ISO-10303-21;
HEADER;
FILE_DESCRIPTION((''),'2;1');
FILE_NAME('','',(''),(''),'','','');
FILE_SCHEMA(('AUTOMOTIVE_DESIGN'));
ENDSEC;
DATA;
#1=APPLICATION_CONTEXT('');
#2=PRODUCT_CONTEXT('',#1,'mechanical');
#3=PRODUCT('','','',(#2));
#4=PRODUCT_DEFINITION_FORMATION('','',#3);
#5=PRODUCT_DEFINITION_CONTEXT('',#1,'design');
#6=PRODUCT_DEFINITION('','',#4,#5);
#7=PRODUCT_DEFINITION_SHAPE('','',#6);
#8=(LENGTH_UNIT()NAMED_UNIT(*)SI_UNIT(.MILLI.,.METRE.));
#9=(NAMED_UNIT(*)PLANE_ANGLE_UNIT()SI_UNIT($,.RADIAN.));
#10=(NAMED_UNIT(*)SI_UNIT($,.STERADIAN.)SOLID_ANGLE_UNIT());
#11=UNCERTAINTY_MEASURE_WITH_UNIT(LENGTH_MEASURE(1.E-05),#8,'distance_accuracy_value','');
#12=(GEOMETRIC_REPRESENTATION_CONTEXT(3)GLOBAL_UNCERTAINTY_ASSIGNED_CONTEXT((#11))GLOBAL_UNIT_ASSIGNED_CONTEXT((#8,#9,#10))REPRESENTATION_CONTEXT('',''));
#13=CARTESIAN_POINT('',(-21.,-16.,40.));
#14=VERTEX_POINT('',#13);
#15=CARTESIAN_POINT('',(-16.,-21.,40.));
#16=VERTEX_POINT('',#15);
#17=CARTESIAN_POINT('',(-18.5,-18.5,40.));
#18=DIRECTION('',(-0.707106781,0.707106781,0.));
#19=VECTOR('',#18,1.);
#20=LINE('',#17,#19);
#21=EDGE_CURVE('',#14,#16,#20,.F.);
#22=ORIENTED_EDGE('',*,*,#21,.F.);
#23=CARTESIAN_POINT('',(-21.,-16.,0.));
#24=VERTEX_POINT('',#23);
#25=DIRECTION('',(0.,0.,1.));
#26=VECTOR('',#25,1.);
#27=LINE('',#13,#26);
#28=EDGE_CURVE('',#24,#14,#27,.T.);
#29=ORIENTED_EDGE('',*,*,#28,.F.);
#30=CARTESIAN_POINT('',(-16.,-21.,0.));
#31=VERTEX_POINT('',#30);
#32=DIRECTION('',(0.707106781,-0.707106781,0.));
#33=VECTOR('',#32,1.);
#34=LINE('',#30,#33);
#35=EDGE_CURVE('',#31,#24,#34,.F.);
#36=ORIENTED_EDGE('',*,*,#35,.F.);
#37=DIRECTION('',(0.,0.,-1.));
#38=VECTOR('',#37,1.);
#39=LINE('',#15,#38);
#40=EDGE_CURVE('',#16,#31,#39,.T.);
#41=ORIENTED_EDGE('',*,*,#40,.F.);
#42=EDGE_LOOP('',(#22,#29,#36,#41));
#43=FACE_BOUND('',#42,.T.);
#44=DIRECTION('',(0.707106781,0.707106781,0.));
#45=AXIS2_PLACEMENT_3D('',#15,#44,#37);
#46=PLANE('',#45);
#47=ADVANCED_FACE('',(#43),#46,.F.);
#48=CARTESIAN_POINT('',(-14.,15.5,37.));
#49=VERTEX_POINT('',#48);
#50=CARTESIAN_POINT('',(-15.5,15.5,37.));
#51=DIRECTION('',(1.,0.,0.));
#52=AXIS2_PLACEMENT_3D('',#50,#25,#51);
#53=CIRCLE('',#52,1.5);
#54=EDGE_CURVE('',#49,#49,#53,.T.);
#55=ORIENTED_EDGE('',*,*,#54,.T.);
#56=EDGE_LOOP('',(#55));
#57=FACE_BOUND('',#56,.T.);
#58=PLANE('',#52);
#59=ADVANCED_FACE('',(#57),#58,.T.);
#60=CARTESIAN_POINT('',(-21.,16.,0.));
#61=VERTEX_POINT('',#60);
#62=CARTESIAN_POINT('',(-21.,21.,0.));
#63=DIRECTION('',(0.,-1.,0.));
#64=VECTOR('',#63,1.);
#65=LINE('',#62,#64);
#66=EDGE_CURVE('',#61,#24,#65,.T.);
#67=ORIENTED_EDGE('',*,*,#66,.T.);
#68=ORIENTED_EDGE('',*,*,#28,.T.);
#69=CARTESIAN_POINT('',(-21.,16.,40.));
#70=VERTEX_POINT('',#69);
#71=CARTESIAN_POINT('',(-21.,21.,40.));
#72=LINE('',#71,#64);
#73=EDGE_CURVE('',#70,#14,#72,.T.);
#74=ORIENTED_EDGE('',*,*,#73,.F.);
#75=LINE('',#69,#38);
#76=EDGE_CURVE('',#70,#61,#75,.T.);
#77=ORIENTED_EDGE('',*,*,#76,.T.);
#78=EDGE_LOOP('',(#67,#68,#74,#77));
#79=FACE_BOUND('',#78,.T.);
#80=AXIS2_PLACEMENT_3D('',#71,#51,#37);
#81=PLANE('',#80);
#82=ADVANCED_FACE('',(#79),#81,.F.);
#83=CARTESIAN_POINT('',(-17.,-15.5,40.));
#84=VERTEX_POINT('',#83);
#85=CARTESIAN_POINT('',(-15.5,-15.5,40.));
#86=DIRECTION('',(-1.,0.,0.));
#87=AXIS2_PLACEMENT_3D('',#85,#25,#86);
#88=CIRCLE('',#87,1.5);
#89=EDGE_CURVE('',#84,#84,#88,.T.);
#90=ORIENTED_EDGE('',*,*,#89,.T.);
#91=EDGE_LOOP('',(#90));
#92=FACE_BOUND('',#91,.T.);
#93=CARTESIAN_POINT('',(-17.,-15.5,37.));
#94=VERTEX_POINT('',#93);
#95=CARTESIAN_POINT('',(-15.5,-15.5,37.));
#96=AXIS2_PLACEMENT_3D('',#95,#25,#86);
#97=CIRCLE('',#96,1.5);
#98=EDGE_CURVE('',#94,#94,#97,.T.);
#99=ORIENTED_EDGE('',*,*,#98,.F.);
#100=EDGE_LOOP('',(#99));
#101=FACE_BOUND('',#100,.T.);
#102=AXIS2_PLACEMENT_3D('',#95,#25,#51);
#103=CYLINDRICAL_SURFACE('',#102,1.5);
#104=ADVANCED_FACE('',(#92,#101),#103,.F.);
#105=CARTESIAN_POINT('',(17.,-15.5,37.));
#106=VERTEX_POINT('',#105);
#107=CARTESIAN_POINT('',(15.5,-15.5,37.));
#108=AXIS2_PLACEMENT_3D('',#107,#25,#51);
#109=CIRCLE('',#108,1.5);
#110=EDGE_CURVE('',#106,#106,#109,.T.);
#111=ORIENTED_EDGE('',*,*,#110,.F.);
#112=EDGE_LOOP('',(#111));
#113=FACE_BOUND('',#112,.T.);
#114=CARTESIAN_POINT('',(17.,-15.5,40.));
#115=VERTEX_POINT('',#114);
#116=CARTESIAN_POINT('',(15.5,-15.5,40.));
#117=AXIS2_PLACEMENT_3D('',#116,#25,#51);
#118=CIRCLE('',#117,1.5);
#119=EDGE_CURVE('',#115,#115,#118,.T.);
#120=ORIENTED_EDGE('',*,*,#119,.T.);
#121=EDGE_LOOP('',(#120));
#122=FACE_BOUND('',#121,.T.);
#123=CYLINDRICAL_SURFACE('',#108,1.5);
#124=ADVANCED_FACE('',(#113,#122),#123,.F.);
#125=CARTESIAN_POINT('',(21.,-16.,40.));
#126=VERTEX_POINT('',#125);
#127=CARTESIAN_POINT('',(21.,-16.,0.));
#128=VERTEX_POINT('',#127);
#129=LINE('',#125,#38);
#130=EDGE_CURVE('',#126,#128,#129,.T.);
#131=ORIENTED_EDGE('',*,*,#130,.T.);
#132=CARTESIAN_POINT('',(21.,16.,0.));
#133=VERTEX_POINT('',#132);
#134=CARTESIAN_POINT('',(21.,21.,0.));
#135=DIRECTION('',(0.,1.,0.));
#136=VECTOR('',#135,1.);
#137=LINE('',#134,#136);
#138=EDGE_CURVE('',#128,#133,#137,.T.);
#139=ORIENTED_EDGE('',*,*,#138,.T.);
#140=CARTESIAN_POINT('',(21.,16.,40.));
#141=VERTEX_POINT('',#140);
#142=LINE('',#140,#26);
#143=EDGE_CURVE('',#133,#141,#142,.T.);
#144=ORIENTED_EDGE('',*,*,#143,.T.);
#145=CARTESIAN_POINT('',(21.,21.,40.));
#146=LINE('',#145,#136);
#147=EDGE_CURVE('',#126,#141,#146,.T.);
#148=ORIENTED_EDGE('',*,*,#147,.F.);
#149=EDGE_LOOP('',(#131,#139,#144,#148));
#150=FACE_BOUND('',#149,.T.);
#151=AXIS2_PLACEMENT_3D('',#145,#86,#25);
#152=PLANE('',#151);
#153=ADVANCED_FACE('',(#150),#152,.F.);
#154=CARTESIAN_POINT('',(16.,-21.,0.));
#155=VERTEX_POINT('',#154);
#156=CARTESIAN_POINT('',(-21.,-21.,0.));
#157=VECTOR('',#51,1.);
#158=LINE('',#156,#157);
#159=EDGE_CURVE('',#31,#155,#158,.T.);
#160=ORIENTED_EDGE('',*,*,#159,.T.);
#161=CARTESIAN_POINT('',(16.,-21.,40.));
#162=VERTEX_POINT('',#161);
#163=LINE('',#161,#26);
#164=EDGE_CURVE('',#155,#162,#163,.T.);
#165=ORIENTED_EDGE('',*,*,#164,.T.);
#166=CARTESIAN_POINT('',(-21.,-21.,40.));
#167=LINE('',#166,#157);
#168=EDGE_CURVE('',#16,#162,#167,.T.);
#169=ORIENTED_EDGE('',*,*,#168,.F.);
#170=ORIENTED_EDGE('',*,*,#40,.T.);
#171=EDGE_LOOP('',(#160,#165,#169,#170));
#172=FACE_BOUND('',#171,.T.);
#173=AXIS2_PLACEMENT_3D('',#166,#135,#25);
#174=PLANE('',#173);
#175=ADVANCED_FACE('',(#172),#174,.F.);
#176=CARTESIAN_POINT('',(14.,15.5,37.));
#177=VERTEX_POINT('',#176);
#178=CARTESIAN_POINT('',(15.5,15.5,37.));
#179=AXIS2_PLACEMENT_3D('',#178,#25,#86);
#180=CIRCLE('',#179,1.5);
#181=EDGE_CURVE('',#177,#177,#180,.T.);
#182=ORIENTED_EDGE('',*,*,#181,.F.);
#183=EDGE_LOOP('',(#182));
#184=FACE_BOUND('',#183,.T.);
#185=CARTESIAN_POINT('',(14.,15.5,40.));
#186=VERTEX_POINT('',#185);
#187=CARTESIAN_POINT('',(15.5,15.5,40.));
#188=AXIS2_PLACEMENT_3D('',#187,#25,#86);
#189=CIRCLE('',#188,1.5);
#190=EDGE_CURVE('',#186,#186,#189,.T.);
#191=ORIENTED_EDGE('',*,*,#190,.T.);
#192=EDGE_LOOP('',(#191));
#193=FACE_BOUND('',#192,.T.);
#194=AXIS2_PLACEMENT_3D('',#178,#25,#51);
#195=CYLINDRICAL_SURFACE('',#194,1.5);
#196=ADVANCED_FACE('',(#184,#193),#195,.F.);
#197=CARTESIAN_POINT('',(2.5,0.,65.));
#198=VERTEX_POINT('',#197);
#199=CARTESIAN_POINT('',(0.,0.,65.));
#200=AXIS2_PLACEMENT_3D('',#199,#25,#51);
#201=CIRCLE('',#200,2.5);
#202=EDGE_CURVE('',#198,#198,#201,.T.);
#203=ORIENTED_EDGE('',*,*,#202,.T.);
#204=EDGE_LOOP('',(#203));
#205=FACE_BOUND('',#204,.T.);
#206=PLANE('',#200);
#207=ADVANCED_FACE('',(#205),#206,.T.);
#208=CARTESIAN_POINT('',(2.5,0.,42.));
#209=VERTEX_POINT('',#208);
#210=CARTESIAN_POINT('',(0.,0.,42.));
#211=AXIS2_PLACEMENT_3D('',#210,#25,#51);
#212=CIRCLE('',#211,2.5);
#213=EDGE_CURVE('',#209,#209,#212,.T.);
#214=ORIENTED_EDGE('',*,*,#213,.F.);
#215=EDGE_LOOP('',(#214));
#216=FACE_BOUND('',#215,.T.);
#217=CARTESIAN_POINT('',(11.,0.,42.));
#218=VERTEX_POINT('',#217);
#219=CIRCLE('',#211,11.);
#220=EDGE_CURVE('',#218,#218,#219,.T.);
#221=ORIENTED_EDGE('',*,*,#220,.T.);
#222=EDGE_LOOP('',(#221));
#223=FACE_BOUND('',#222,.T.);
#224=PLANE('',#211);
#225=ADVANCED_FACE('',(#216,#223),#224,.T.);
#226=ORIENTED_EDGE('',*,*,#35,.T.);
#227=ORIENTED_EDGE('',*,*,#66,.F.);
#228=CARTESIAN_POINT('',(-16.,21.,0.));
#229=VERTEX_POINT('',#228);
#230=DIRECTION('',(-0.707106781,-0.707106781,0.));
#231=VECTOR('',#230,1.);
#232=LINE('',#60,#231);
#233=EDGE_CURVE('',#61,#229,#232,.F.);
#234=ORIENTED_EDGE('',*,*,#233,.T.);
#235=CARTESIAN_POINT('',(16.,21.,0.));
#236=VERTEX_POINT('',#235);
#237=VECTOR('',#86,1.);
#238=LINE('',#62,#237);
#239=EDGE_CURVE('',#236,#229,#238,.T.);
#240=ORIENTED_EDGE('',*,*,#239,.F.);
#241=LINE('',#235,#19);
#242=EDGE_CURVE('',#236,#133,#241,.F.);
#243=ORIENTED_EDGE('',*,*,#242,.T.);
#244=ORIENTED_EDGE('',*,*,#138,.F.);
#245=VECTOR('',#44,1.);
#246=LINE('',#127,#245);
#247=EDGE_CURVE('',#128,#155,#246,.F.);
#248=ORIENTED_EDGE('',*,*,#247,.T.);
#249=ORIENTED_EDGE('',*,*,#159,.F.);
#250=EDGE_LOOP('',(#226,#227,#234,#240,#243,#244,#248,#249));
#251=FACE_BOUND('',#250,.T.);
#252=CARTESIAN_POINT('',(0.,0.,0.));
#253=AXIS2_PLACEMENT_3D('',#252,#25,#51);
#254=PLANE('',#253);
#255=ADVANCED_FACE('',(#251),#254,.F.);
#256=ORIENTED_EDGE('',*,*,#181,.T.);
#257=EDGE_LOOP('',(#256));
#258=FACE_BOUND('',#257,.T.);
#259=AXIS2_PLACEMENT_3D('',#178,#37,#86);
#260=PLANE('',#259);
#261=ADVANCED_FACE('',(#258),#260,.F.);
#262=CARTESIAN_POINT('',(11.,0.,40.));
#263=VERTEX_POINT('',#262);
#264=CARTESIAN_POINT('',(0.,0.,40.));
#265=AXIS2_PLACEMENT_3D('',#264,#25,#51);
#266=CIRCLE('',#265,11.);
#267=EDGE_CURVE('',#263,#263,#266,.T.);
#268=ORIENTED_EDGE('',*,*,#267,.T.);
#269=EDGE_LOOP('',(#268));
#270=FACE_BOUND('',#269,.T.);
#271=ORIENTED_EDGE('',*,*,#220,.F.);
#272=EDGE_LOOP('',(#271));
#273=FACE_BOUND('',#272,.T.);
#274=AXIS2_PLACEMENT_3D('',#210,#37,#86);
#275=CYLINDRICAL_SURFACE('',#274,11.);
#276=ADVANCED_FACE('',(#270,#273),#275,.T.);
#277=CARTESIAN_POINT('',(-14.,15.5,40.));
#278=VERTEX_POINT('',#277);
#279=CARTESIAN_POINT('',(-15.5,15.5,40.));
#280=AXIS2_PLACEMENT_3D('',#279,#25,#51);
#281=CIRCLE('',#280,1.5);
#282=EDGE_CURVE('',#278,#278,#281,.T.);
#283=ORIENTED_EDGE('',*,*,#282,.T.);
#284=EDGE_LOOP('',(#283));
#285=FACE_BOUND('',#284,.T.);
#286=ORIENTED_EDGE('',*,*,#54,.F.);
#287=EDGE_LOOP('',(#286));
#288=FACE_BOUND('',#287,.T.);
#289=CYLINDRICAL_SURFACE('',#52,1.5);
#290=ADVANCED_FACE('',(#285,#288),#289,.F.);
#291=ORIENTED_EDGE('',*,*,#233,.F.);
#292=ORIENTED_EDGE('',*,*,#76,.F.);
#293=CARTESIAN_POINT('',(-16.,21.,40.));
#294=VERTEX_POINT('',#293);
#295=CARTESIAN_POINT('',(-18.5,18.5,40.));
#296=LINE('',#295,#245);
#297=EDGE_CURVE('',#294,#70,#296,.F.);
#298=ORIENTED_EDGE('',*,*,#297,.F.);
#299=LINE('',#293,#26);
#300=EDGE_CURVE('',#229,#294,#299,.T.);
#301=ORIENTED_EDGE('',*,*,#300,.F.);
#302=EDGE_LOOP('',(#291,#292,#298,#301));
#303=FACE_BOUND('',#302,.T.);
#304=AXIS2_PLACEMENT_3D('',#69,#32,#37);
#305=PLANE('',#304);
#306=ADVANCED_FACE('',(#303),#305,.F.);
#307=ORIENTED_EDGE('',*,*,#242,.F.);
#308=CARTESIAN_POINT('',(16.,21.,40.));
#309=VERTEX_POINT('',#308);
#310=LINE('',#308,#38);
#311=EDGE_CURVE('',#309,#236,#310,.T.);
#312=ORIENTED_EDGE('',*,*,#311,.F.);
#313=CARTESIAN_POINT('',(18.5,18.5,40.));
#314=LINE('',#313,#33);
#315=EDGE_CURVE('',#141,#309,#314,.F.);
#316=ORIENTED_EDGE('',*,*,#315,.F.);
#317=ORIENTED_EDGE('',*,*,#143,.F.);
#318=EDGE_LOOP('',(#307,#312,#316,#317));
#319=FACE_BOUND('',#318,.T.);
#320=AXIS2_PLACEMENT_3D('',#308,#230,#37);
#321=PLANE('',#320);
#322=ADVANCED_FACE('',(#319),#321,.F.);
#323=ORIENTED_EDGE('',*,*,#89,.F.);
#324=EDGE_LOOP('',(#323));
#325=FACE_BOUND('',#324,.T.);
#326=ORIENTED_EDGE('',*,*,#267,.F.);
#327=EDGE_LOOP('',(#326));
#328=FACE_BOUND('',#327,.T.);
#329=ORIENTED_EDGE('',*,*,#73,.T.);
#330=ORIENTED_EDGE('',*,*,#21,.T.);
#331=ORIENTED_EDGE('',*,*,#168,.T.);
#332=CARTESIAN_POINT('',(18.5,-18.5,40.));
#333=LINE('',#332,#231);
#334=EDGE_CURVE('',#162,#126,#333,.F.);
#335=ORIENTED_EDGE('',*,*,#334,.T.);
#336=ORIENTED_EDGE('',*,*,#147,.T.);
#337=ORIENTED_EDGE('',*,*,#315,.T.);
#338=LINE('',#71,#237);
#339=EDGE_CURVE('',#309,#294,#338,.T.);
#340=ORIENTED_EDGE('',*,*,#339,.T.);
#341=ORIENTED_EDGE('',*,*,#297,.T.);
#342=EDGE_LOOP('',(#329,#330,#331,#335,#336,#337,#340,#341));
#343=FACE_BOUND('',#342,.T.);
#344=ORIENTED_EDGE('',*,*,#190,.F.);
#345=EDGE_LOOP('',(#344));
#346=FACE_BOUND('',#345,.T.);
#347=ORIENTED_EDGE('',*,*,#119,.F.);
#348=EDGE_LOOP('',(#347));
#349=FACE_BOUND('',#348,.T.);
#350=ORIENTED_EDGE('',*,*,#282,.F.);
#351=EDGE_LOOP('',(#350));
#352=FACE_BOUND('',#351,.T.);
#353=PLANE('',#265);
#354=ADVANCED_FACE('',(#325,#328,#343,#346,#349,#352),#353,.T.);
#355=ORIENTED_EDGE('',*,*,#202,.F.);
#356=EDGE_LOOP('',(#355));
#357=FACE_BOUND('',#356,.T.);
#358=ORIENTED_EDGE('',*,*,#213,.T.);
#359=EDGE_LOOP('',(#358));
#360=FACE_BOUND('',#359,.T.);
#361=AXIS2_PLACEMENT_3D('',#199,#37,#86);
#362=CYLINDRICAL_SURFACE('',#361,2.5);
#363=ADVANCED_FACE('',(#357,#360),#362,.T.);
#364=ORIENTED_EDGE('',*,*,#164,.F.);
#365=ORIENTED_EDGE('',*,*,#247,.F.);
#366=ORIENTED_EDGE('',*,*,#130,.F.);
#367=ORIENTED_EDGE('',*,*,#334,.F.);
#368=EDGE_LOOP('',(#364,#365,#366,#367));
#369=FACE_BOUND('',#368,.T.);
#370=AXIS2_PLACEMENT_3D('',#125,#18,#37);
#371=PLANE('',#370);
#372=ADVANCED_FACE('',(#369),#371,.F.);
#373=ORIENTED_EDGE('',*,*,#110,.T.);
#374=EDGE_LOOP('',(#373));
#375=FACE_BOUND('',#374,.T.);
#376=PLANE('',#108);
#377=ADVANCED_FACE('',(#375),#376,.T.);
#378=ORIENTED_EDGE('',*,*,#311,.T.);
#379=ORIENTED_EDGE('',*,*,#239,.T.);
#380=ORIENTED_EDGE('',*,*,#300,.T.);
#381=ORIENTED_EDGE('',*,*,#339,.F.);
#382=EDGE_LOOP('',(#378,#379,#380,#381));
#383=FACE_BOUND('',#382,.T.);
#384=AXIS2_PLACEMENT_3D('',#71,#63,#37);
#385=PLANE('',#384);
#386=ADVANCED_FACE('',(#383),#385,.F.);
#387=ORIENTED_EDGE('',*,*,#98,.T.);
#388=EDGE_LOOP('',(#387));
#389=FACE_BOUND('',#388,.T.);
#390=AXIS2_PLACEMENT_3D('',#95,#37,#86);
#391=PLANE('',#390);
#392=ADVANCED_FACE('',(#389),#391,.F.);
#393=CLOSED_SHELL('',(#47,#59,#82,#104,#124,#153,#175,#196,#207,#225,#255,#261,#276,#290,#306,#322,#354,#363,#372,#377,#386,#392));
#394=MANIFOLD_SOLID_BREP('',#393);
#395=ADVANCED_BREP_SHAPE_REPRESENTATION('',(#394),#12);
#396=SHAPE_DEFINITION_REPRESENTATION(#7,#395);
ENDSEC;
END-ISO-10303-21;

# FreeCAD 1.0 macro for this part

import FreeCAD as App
import Part
import Sketcher
from FreeCAD import Vector


def edges_at(feature, points):
    """Names of the edges that pass closest to the given points."""
    edges = feature.Shape.Edges
    near = lambda p: min(range(len(edges)), key=lambda i: edges[i].distToShape(Part.Vertex(*p))[0])
    return sorted({f"Edge{near(p) + 1}" for p in points})


def add_polygon(sketch, points):
    """Adds a closed chain of lines whose ends are joined by coincident constraints."""
    first, n = sketch.GeometryCount, len(points)
    for a, b in zip(points, points[1:] + points[:1]):
        sketch.addGeometry(Part.LineSegment(App.Vector(*a, 0), App.Vector(*b, 0)), False)
    for i in range(n):
        sketch.addConstraint(Sketcher.Constraint("Coincident", first + i, 2, first + (i + 1) % n, 1))

doc = App.newDocument("Part")
body = doc.addObject("PartDesign::Body", "Body")

# Sketch on XY plane
sketch1 = body.newObject("Sketcher::SketchObject", "Sketch")
sketch1.AttachmentSupport = (doc.getObject("XY_Plane"), [""])
sketch1.MapMode = "FlatFace"
add_polygon(sketch1, [(-21, 21), (-21, -21), (21, -21), (21, 21)])  # lines 0-3
sketch1.addConstraint(Sketcher.Constraint("Vertical", 0))
sketch1.addConstraint(Sketcher.Constraint("Horizontal", 1))
sketch1.addConstraint(Sketcher.Constraint("Vertical", 2))
sketch1.addConstraint(Sketcher.Constraint("Horizontal", 3))
sketch1.addConstraint(Sketcher.Constraint("Symmetric", 0, 2, 2, 2, -1, 1))
sketch1.addConstraint(Sketcher.Constraint("Equal", 3, 0))
sketch1.addConstraint(Sketcher.Constraint("DistanceX", 1, 1, 1, 2, 42.0))
pad1 = body.newObject("PartDesign::Pad", "Pad")
pad1.Profile = sketch1
pad1.Length = 40
doc.recompute()

chamfer = body.newObject("PartDesign::Chamfer", "Chamfer")
chamfer.Base = (pad1, edges_at(pad1, [
    (-21, 21, 20),
    (21, 21, 20),
    (21, -21, 20),
    (-21, -21, 20),
]))
chamfer.Size = 5

# Sketch on XY plane
sketch2 = body.newObject("Sketcher::SketchObject", "Sketch001")
sketch2.AttachmentSupport = (doc.getObject("XY_Plane"), [""])
sketch2.MapMode = "FlatFace"
sketch2.AttachmentOffset = App.Placement(Vector(0, 0, 40), App.Rotation())
sketch2.addGeometry(Part.Circle(Vector(0, 0, 0), Vector(0, 0, 1), 11), False)
sketch2.addConstraint(Sketcher.Constraint("Coincident", 0, 3, -1, 1))
sketch2.addConstraint(Sketcher.Constraint("Diameter", 0, 22.0))
pad2 = body.newObject("PartDesign::Pad", "Pad001")
pad2.Profile = sketch2
pad2.Length = 2

# Sketch on XY plane
sketch3 = body.newObject("Sketcher::SketchObject", "Sketch002")
sketch3.AttachmentSupport = (doc.getObject("XY_Plane"), [""])
sketch3.MapMode = "FlatFace"
sketch3.AttachmentOffset = App.Placement(Vector(0, 0, 42), App.Rotation())
sketch3.addGeometry(Part.Circle(Vector(0, 0, 0), Vector(0, 0, 1), 2.5), False)
sketch3.addConstraint(Sketcher.Constraint("Coincident", 0, 3, -1, 1))
sketch3.addConstraint(Sketcher.Constraint("Diameter", 0, 5.0))
pad3 = body.newObject("PartDesign::Pad", "Pad002")
pad3.Profile = sketch3
pad3.Length = 23

# Sketch on XY plane
sketch4 = body.newObject("Sketcher::SketchObject", "Sketch003")
sketch4.AttachmentSupport = (doc.getObject("XY_Plane"), [""])
sketch4.MapMode = "FlatFace"
sketch4.AttachmentOffset = App.Placement(Vector(0, 0, 40), App.Rotation())
sketch4.addGeometry(Part.Circle(Vector(-15.5, 15.5, 0), Vector(0, 0, 1), 1.5), False)
sketch4.addGeometry(Part.Circle(Vector(-15.5, -15.5, 0), Vector(0, 0, 1), 1.5), False)
sketch4.addGeometry(Part.Circle(Vector(15.5, -15.5, 0), Vector(0, 0, 1), 1.5), False)
sketch4.addGeometry(Part.Circle(Vector(15.5, 15.5, 0), Vector(0, 0, 1), 1.5), False)
sketch4.addConstraint(Sketcher.Constraint("Equal", 0, 1))
sketch4.addConstraint(Sketcher.Constraint("Equal", 1, 2))
sketch4.addConstraint(Sketcher.Constraint("Equal", 2, 3))
sketch4.addConstraint(Sketcher.Constraint("Symmetric", 0, 3, 2, 3, -1, 1))
sketch4.addConstraint(Sketcher.Constraint("Symmetric", 1, 3, 3, 3, -1, 1))
sketch4.addConstraint(Sketcher.Constraint("Symmetric", 1, 3, 2, 3, -2))
sketch4.addConstraint(Sketcher.Constraint("Diameter", 0, 3.0))
sketch4.addConstraint(Sketcher.Constraint("DistanceY", 1, 3, 0, 3, 31.0))
sketch4.addConstraint(Sketcher.Constraint("DistanceX", 1, 3, 2, 3, 31.0))
pocket1 = body.newObject("PartDesign::Pocket", "Pocket")
pocket1.Profile = sketch4
pocket1.Length = 3

doc.recompute()
